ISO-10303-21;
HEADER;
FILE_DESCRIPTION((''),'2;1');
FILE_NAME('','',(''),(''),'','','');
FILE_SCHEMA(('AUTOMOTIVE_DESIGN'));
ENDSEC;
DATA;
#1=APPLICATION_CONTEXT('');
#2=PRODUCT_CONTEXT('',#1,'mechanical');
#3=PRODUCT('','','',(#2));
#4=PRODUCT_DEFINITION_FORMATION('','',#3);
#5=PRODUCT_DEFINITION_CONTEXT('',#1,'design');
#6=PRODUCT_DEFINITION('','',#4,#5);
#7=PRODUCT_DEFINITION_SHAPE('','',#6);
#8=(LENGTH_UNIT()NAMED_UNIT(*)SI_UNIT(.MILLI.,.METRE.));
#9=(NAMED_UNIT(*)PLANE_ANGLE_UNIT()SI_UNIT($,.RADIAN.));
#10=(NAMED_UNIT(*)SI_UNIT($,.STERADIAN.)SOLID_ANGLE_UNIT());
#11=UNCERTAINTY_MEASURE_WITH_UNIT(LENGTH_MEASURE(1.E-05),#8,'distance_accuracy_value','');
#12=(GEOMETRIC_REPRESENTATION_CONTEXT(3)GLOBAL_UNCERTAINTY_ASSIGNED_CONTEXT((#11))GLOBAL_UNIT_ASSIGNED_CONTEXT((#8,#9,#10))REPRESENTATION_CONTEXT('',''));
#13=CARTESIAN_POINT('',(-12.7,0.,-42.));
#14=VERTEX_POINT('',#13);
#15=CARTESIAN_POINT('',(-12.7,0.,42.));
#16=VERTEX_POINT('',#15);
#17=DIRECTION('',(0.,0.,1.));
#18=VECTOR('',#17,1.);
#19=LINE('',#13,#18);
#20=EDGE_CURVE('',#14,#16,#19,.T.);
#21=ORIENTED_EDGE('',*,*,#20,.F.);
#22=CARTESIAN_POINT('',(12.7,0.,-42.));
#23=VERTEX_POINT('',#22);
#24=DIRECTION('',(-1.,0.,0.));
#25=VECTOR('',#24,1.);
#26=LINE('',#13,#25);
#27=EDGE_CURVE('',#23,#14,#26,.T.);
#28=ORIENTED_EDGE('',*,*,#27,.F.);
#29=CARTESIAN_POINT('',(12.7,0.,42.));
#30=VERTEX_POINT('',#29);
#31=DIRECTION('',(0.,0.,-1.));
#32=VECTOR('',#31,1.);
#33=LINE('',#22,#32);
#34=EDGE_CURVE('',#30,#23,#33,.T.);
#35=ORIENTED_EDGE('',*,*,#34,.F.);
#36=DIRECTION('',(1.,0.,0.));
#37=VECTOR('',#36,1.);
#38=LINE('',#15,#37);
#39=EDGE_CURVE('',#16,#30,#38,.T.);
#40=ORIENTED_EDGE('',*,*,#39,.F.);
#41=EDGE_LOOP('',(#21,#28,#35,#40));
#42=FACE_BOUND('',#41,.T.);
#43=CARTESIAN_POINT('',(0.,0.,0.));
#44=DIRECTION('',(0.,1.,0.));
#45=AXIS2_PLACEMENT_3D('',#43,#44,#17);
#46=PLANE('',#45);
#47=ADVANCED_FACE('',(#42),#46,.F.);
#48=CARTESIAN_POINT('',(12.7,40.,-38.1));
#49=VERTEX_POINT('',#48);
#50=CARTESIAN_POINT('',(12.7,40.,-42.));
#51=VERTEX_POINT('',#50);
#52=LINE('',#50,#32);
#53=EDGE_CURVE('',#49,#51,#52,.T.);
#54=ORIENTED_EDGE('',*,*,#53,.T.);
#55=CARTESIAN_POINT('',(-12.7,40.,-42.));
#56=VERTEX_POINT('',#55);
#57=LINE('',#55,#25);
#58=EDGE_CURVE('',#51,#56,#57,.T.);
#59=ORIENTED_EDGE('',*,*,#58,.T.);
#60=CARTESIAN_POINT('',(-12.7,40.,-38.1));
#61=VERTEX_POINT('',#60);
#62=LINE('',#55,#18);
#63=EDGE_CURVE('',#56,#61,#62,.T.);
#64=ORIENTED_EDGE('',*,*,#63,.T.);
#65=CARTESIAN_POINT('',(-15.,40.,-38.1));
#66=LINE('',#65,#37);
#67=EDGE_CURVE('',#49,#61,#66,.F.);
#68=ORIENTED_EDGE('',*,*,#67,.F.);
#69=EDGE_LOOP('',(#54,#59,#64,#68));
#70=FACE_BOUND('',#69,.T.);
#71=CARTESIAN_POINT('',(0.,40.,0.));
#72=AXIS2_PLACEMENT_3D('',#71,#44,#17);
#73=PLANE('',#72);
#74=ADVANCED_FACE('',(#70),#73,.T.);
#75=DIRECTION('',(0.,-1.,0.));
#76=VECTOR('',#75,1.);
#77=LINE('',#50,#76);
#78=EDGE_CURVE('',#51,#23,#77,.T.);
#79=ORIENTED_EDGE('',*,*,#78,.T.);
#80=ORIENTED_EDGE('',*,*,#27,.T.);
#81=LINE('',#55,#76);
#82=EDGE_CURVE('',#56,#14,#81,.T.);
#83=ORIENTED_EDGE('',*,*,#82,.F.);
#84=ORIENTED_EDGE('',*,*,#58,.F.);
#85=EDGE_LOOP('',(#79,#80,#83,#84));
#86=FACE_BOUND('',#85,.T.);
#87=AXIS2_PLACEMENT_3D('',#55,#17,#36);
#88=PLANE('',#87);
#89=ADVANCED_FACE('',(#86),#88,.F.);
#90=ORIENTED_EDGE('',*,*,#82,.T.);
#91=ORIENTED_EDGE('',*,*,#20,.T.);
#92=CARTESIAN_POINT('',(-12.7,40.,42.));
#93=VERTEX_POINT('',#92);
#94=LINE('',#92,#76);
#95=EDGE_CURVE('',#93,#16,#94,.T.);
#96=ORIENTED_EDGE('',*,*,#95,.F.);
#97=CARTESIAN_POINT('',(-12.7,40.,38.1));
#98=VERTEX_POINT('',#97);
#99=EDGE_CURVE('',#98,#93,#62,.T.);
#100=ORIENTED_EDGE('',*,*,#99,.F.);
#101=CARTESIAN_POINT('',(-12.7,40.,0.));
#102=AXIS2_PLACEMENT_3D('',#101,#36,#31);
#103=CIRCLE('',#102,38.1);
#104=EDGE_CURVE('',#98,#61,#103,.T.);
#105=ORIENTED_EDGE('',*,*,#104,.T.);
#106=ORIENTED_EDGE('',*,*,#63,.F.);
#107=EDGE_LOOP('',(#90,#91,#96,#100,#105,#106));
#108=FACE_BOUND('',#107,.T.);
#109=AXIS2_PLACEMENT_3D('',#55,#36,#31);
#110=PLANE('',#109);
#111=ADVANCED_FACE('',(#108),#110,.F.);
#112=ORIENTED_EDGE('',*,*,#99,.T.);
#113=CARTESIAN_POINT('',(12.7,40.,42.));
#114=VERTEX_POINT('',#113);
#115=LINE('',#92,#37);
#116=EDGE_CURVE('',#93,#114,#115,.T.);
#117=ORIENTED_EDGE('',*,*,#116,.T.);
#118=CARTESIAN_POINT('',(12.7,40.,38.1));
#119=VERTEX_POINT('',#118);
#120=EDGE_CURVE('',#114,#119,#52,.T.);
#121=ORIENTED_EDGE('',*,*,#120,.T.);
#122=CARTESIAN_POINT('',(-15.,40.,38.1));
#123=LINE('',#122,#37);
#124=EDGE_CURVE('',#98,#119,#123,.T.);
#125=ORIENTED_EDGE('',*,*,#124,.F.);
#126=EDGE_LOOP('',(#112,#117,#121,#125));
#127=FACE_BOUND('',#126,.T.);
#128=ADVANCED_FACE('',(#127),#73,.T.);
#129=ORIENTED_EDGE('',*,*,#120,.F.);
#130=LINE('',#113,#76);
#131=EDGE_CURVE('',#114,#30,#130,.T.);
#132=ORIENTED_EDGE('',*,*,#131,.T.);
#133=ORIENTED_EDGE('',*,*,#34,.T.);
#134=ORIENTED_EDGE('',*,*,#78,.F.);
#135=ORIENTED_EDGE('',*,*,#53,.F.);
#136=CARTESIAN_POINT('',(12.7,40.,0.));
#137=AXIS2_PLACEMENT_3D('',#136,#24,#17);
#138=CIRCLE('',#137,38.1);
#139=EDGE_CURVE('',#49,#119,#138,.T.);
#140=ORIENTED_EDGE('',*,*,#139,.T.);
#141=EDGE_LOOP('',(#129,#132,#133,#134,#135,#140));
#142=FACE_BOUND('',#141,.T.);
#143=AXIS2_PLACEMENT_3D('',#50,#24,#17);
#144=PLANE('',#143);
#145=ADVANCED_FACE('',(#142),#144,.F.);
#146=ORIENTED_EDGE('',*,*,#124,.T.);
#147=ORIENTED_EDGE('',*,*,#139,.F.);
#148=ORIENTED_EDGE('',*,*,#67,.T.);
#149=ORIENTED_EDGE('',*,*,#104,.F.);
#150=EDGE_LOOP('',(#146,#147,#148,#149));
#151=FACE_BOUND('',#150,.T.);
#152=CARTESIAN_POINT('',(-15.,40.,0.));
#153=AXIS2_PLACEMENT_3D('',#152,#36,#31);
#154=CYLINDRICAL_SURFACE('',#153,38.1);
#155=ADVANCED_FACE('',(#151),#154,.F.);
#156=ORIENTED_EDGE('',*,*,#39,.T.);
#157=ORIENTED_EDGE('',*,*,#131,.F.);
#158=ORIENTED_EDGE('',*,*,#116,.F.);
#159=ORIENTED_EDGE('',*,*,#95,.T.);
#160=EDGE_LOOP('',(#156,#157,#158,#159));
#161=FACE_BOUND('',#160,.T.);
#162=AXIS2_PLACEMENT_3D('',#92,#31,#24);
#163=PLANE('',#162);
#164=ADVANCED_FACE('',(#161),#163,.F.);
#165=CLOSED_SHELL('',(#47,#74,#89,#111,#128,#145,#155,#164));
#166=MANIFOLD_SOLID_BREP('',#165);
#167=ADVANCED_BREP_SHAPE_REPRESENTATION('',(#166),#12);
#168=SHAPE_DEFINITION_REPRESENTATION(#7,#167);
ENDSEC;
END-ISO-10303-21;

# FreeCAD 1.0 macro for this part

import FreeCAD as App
import Part
import Sketcher


def add_polygon(sketch, points):
    """Adds a closed chain of lines whose ends are joined by coincident constraints."""
    first, n = sketch.GeometryCount, len(points)
    for a, b in zip(points, points[1:] + points[:1]):
        sketch.addGeometry(Part.LineSegment(App.Vector(*a, 0), App.Vector(*b, 0)), False)
    for i in range(n):
        sketch.addConstraint(Sketcher.Constraint("Coincident", first + i, 2, first + (i + 1) % n, 1))

doc = App.newDocument("Part")
params = doc.addObject("Spreadsheet::Sheet", "Params")
for row, (alias, value) in enumerate([
    ("sketch1_height", "84 mm"),
    ("sketch1_width", "25.4 mm"),
    ("pad1_length", "40 mm"),
    ("sketch2_diameter", "76.2 mm"),
], start=1):
    params.set(f"A{row}", alias)
    params.set(f"B{row}", "=" + value)
    params.setAlias(f"B{row}", alias)

body = doc.addObject("PartDesign::Body", "Body")

# Sketch on XZ plane
sketch1 = doc.addObject("Sketcher::SketchObject", "Sketch")
body.addObject(sketch1)
sketch1.AttachmentSupport = (doc.XZ_Plane, [""])
sketch1.MapMode = "FlatFace"
add_polygon(sketch1, [(-13, -42), (-13, 42), (13, 42), (13, -42)])  # lines 0-3
sketch1.addConstraint(Sketcher.Constraint("Vertical", 0))
sketch1.addConstraint(Sketcher.Constraint("Horizontal", 1))
sketch1.addConstraint(Sketcher.Constraint("Vertical", 2))
sketch1.addConstraint(Sketcher.Constraint("Horizontal", 3))
sketch1.addConstraint(Sketcher.Constraint("Symmetric", 0, 2, 2, 2, -1, 1))
sketch1.addConstraint(Sketcher.Constraint("DistanceY", 0, 1, 0, 2, 84.0))
sketch1.addConstraint(Sketcher.Constraint("DistanceX", 1, 1, 1, 2, 25.4))
sketch1.setExpression("Constraints[9]", "Params.sketch1_height")
sketch1.setExpression("Constraints[10]", "Params.sketch1_width")
pad1 = doc.addObject("PartDesign::Pad", "Pad")
body.addObject(pad1)
pad1.Profile = sketch1
pad1.setExpression("Length", "Params.pad1_length")
pad1.Reversed = True

# Sketch on YZ plane
sketch2 = doc.addObject("Sketcher::SketchObject", "Sketch001")
body.addObject(sketch2)
sketch2.AttachmentSupport = (doc.YZ_Plane, [""])
sketch2.MapMode = "FlatFace"
sketch2.addGeometry(Part.Circle(App.Vector(40, 0, 0), App.Vector(0, 0, 1), 38), False)
sketch2.addConstraint(Sketcher.Constraint("PointOnObject", 0, 3, -1))
sketch2.addConstraint(Sketcher.Constraint("Diameter", 0, 76.2))
sketch2.addConstraint(Sketcher.Constraint("DistanceX", -1, 1, 0, 3, 40.0))
sketch2.setExpression("Constraints[1]", "Params.sketch2_diameter")
pocket1 = doc.addObject("PartDesign::Pocket", "Pocket")
body.addObject(pocket1)
pocket1.Profile = sketch2
pocket1.Type = "ThroughAll"
pocket1.Midplane = True

doc.recompute()
